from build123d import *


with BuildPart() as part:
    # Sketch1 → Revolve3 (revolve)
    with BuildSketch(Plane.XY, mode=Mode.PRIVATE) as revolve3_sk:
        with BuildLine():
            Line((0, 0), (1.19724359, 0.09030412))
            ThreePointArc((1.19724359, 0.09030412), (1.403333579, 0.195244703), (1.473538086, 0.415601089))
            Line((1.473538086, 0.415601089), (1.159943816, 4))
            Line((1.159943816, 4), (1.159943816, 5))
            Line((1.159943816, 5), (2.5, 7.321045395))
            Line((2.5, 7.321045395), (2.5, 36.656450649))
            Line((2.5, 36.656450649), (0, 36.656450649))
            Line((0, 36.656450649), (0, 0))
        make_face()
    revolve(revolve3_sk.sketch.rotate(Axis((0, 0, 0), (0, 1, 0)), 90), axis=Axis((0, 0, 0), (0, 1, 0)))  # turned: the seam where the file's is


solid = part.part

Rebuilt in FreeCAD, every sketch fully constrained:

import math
import FreeCAD as App
import Part
import Sketcher
from FreeCAD import Vector
Q = App.Units.Quantity

doc = App.newDocument("Part")
params = doc.addObject("Spreadsheet::Sheet", "Params")
for row, (alias, value) in enumerate([
    ("sketch1_radius", "0.3 mm"),
    ("sketch1_height", "1 mm"),
    ("sketch1_width", "2.5 mm"),
    ("revolution_angle", "360 deg"),
], start=1):
    params.set(f"A{row}", alias)
    params.set(f"B{row}", "=" + value)
    params.setAlias(f"B{row}", alias)

body = doc.addObject("PartDesign::Body", "Body")

# Sketch on XY plane
sketch1 = body.newObject("Sketcher::SketchObject", "Sketch")
sketch1.AttachmentSupport = (doc.getObject("XY_Plane"), [""])
sketch1.MapMode = "FlatFace"
sketch1.addGeometry([
    Part.LineSegment(Vector(0, 0, 0), Vector(1.197244, 0.090304, 0)),  # 0
    Part.ArcOfCircle(Part.Circle(Vector(1.17468, 0.389454, 0), Vector(0, 0, 1), 0.3), math.radians(-85.686537), math.radians(5)),  # 1
    Part.LineSegment(Vector(1.473538, 0.415601, 0), Vector(1.159944, 4, 0)),  # 2
    Part.LineSegment(Vector(1.159944, 4, 0), Vector(1.159944, 5, 0)),  # 3
    Part.LineSegment(Vector(1.159944, 5, 0), Vector(2.5, 7.321045, 0)),  # 4
    Part.LineSegment(Vector(2.5, 7.321045, 0), Vector(2.5, 36.656451, 0)),  # 5
    Part.LineSegment(Vector(2.5, 36.656451, 0), Vector(0, 36.656451, 0)),  # 6
    Part.LineSegment(Vector(0, 36.656451, 0), Vector(0, 0, 0)),  # 7
], False)
sketch1.addConstraint([
    Sketcher.Constraint("Coincident", 0, 2, 1, 1),
    Sketcher.Constraint("Coincident", 1, 2, 2, 1),
    Sketcher.Constraint("Coincident", 2, 2, 3, 1),
    Sketcher.Constraint("Coincident", 3, 2, 4, 1),
    Sketcher.Constraint("Coincident", 4, 2, 5, 1),
    Sketcher.Constraint("Coincident", 5, 2, 6, 1),
    Sketcher.Constraint("Coincident", 6, 2, 7, 1),
    Sketcher.Constraint("Coincident", 7, 2, 0, 1),
    Sketcher.Constraint("Vertical", 3),
    Sketcher.Constraint("Vertical", 5),
    Sketcher.Constraint("Horizontal", 6),
    Sketcher.Constraint("Vertical", 7),
    Sketcher.Constraint("Coincident", 7, 2, -1, 1),
    Sketcher.Constraint("Radius", 1, Q("0.3 mm")),
    Sketcher.Constraint("DistanceY", 3, 1, 3, 2, Q("1 mm")),
    Sketcher.Constraint("DistanceX", 6, 2, 6, 1, Q("2.5 mm")),
    Sketcher.Constraint("DistanceY", -1, 1, 2, 2, Q("4 mm")),
    Sketcher.Constraint("DistanceY", 7, 2, 7, 1, Q("36.656451 mm")),
    Sketcher.Constraint("DistanceY", -1, 1, 1, 2, Q("0.415601 mm")),
    Sketcher.Constraint("DistanceX", 2, 2, 0, 2, Q("0.0373 mm")),
    Sketcher.Constraint("Distance", 2, Q("3.598091 mm")),
    Sketcher.Constraint("DistanceY", 5, 1, 5, 2, Q("29.335405 mm")),
    Sketcher.Constraint("DistanceX", -1, 1, 1, 3, Q("1.17468 mm")),
    Sketcher.Constraint("DistanceX", -1, 1, 1, 2, Q("1.473538 mm")),
])
sketch1.setExpression("Constraints[13]", "Params.sketch1_radius")
sketch1.setExpression("Constraints[14]", "Params.sketch1_height")
sketch1.setExpression("Constraints[15]", "Params.sketch1_width")
revolution = body.newObject("PartDesign::Revolution", "Revolution")
revolution.Profile = sketch1
revolution.ReferenceAxis = (sketch1, ["V_Axis"])
revolution.setExpression("Angle", "Params.revolution_angle")

doc.recompute()
